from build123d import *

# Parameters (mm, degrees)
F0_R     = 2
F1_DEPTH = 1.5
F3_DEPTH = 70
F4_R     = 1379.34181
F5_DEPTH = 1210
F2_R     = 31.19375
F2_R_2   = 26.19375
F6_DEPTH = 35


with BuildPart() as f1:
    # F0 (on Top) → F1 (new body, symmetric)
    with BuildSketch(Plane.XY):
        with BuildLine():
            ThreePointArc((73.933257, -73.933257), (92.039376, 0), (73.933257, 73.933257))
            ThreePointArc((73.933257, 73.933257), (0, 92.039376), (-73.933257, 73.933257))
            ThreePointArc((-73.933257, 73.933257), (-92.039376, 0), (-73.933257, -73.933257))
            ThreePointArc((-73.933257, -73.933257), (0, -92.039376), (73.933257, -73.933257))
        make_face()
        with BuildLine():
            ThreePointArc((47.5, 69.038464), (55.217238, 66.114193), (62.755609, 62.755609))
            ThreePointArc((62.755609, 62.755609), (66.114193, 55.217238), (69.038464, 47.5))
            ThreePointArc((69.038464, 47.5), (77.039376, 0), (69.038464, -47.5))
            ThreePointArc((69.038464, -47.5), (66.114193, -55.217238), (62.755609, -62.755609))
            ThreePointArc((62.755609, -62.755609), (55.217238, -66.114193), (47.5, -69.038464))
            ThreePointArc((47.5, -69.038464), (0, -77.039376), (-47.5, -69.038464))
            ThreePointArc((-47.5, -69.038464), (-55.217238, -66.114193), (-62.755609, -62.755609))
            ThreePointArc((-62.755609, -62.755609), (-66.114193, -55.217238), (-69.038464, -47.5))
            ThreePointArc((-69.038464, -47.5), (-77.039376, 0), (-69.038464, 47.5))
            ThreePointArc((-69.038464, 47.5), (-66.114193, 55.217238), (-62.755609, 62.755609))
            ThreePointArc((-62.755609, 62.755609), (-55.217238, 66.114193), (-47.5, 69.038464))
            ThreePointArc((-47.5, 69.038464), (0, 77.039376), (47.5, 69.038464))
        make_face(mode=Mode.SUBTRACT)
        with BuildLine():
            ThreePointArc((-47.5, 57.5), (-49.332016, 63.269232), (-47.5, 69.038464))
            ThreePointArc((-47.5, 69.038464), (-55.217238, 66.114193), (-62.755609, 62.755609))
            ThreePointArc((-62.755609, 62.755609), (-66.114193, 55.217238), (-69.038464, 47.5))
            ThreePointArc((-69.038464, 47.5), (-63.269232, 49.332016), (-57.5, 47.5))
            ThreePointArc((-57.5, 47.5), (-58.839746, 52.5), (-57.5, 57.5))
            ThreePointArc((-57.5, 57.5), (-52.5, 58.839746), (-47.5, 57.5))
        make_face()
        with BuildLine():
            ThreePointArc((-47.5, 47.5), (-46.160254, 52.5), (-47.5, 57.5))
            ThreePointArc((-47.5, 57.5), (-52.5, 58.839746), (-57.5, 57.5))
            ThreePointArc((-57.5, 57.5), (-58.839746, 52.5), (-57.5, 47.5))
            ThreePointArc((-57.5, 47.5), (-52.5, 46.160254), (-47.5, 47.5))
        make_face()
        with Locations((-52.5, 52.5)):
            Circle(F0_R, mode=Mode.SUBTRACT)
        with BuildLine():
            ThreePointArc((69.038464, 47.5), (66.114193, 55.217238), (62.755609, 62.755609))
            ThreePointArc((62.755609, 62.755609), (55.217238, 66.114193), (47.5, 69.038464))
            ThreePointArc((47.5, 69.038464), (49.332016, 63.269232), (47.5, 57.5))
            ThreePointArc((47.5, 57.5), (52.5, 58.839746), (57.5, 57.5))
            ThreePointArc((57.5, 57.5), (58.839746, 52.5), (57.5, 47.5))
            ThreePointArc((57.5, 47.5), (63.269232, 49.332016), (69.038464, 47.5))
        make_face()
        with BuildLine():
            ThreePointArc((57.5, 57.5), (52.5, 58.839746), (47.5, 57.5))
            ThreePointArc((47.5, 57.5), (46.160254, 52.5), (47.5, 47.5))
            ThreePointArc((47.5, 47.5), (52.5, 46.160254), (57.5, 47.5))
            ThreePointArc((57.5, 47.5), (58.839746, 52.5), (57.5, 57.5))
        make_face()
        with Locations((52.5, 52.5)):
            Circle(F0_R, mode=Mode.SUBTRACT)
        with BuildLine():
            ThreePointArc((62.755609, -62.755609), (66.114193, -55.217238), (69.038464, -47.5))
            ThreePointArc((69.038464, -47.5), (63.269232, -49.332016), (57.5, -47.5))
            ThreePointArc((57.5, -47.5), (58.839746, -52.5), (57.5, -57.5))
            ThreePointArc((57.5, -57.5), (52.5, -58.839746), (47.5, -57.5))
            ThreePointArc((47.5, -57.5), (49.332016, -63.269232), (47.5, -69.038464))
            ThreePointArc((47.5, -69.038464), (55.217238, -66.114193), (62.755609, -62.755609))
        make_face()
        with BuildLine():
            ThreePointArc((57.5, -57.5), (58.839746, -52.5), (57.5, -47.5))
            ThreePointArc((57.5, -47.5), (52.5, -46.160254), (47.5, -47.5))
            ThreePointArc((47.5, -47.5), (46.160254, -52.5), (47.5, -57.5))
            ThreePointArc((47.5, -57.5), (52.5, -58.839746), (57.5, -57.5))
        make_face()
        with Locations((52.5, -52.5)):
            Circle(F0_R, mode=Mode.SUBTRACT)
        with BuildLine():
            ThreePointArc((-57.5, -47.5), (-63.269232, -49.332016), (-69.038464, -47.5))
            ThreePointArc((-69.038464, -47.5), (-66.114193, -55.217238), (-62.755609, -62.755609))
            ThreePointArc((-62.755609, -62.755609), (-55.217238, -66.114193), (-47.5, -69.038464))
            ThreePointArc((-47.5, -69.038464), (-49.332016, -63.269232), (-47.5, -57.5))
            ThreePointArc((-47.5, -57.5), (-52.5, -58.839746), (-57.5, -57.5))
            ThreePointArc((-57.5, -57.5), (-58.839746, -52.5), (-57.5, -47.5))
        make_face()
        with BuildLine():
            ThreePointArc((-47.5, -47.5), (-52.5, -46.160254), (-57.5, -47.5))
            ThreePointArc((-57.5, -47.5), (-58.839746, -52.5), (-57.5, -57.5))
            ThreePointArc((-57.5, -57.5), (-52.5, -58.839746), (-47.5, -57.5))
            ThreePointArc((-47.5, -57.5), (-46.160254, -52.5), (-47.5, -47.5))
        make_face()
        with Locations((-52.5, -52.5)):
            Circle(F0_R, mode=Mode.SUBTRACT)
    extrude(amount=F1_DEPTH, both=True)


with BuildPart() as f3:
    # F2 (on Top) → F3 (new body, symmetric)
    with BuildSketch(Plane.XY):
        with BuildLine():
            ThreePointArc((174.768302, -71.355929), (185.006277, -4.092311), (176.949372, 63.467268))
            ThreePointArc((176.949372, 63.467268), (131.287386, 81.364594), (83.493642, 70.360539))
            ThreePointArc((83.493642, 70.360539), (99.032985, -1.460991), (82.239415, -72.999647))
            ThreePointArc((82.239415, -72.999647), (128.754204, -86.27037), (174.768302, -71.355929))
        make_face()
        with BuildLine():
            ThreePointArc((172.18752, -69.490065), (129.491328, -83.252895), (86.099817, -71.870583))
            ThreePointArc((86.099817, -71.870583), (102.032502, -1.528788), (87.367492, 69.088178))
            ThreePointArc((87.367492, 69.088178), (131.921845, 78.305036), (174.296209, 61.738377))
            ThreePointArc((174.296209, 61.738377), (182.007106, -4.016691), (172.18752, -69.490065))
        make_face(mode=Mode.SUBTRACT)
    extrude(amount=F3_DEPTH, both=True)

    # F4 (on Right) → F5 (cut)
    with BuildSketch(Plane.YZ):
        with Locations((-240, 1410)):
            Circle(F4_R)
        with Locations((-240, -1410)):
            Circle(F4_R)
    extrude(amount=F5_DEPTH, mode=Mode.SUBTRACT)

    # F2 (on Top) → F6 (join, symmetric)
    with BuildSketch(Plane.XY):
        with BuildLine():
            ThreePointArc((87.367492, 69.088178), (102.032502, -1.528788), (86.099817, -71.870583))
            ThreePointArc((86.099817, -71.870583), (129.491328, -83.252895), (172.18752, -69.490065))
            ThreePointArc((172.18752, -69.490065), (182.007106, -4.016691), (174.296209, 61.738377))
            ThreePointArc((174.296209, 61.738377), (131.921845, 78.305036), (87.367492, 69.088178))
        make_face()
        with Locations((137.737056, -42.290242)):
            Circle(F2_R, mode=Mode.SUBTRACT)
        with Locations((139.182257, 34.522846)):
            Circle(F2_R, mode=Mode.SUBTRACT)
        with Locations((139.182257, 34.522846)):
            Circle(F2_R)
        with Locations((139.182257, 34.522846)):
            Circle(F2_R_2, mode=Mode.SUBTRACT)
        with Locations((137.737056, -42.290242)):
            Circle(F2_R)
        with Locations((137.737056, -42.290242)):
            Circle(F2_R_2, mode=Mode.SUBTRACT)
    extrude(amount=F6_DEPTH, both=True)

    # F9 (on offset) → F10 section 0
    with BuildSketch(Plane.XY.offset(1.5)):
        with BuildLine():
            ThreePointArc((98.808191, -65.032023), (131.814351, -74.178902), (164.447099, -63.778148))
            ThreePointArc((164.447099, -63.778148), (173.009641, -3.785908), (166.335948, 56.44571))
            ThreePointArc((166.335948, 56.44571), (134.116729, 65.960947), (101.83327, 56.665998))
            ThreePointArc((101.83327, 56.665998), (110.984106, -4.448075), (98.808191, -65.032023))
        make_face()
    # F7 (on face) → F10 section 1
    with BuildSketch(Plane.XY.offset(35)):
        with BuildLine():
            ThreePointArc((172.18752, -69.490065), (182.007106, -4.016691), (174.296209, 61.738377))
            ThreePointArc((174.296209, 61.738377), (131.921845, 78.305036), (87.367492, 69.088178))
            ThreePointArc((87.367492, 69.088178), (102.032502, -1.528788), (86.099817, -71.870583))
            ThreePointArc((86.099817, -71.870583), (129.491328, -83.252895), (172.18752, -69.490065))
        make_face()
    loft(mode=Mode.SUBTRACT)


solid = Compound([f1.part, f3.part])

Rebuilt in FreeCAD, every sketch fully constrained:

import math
import FreeCAD as App
import Part
import Sketcher
from FreeCAD import Vector
Q = App.Units.Quantity

doc = App.newDocument("Part")
body = doc.addObject("PartDesign::Body", "Body")

sketch1 = body.newObject("Sketcher::SketchObject", "Sketch")
sketch1.AttachmentSupport = (doc.getObject("XY_Plane"), [""])
sketch1.MapMode = "FlatFace"
sketch1.addGeometry([
    Part.ArcOfCircle(Part.Circle(Vector(-68, 0, 0), Vector(0, 0, 1), 160), math.radians(-28), math.radians(28)),
    Part.ArcOfCircle(Part.Circle(Vector(0, -68, 0), Vector(0, 0, 1), 160), math.radians(62), math.radians(118)),
    Part.ArcOfCircle(Part.Circle(Vector(68, 0, 0), Vector(0, 0, 1), 160), math.radians(152), math.radians(208)),
    Part.ArcOfCircle(Part.Circle(Vector(0, 68, 0), Vector(0, 0, 1), 160), math.radians(-118), math.radians(-62)),
    Part.Circle(Vector(-52.5, -52.5, 0), Vector(0, 0, 1), 2),
    Part.Circle(Vector(52.5, -52.5, 0), Vector(0, 0, 1), 2),
    Part.Circle(Vector(-52.5, 52.5, 0), Vector(0, 0, 1), 2),
    Part.ArcOfCircle(Part.Circle(Vector(0, -68, 0), Vector(0, 0, 1), 145), math.radians(71), math.radians(109)),
    Part.ArcOfCircle(Part.Circle(Vector(39.3, 63.3, 0), Vector(0, 0, 1), 10), math.radians(-35), math.radians(35)),
    Part.ArcOfCircle(Part.Circle(Vector(56.2, 52.5, 0), Vector(0, 0, 1), 10), math.radians(150), math.radians(210)),
    Part.ArcOfCircle(Part.Circle(Vector(52.5, 56.2, 0), Vector(0, 0, 1), 10), math.radians(-120), math.radians(-60)),
    Part.ArcOfCircle(Part.Circle(Vector(63.3, 39.3, 0), Vector(0, 0, 1), 10), math.radians(55), math.radians(125)),
    Part.ArcOfCircle(Part.Circle(Vector(-68, 0, 0), Vector(0, 0, 1), 145), math.radians(-19), math.radians(19)),
    Part.ArcOfCircle(Part.Circle(Vector(63.3, -39.3, 0), Vector(0, 0, 1), 10), math.radians(-125), math.radians(-55)),
    Part.ArcOfCircle(Part.Circle(Vector(52.5, -56.2, 0), Vector(0, 0, 1), 10), math.radians(60), math.radians(120)),
    Part.ArcOfCircle(Part.Circle(Vector(56.2, -52.5, 0), Vector(0, 0, 1), 10), math.radians(150), math.radians(210)),
    Part.ArcOfCircle(Part.Circle(Vector(39.3, -63.3, 0), Vector(0, 0, 1), 10), math.radians(-35), math.radians(35)),
    Part.ArcOfCircle(Part.Circle(Vector(0, 68, 0), Vector(0, 0, 1), 145), math.radians(-109), math.radians(-71)),
    Part.ArcOfCircle(Part.Circle(Vector(-39.3, -63.3, 0), Vector(0, 0, 1), 10), math.radians(145), math.radians(215)),
    Part.ArcOfCircle(Part.Circle(Vector(-56.2, -52.5, 0), Vector(0, 0, 1), 10), math.radians(-30), math.radians(30)),
    Part.ArcOfCircle(Part.Circle(Vector(-52.5, -56.2, 0), Vector(0, 0, 1), 10), math.radians(60), math.radians(120)),
    Part.ArcOfCircle(Part.Circle(Vector(-63.3, -39.3, 0), Vector(0, 0, 1), 10), math.radians(-125), math.radians(-55)),
    Part.ArcOfCircle(Part.Circle(Vector(68, 0, 0), Vector(0, 0, 1), 145), math.radians(161), math.radians(199)),
    Part.ArcOfCircle(Part.Circle(Vector(-63.3, 39.3, 0), Vector(0, 0, 1), 10), math.radians(55), math.radians(125)),
    Part.ArcOfCircle(Part.Circle(Vector(-52.5, 56.2, 0), Vector(0, 0, 1), 10), math.radians(-120), math.radians(-60)),
    Part.ArcOfCircle(Part.Circle(Vector(-56.2, 52.5, 0), Vector(0, 0, 1), 10), math.radians(-30), math.radians(30)),
    Part.ArcOfCircle(Part.Circle(Vector(-39.3, 63.3, 0), Vector(0, 0, 1), 10), math.radians(145), math.radians(215)),
    Part.Circle(Vector(52.5, 52.5, 0), Vector(0, 0, 1), 2),
], False)
sketch1.addConstraint([
    Sketcher.Constraint("Coincident", 0, 2, 1, 1),
    Sketcher.Constraint("Coincident", 1, 2, 2, 1),
    Sketcher.Constraint("Coincident", 2, 2, 3, 1),
    Sketcher.Constraint("Coincident", 3, 2, 0, 1),
    Sketcher.Constraint("Coincident", 7, 1, 8, 2),
    Sketcher.Constraint("Coincident", 8, 1, 9, 1),
    Sketcher.Constraint("Coincident", 9, 2, 10, 1),
    Sketcher.Constraint("Coincident", 10, 2, 11, 2),
    Sketcher.Constraint("Coincident", 11, 1, 12, 2),
    Sketcher.Constraint("Coincident", 12, 1, 13, 2),
    Sketcher.Constraint("Coincident", 13, 1, 14, 1),
    Sketcher.Constraint("Coincident", 14, 2, 15, 1),
    Sketcher.Constraint("Coincident", 15, 2, 16, 2),
    Sketcher.Constraint("Coincident", 16, 1, 17, 2),
    Sketcher.Constraint("Coincident", 17, 1, 18, 2),
    Sketcher.Constraint("Coincident", 18, 1, 19, 1),
    Sketcher.Constraint("Coincident", 19, 2, 20, 1),
    Sketcher.Constraint("Coincident", 20, 2, 21, 2),
    Sketcher.Constraint("Coincident", 21, 1, 22, 2),
    Sketcher.Constraint("Coincident", 22, 1, 23, 2),
    Sketcher.Constraint("Coincident", 23, 1, 24, 1),
    Sketcher.Constraint("Coincident", 24, 2, 25, 1),
    Sketcher.Constraint("Coincident", 25, 2, 26, 2),
    Sketcher.Constraint("Coincident", 26, 1, 7, 2),
    Sketcher.Constraint("Coincident", 7, 3, 1, 3),
    Sketcher.Constraint("Coincident", 12, 3, 0, 3),
    Sketcher.Constraint("Coincident", 17, 3, 3, 3),
    Sketcher.Constraint("Coincident", 22, 3, 2, 3),
    Sketcher.Constraint("Equal", 0, 1),
    Sketcher.Constraint("Equal", 1, 2),
    Sketcher.Constraint("Equal", 2, 3),
    Sketcher.Constraint("Equal", 4, 5),
    Sketcher.Constraint("Equal", 5, 6),
    Sketcher.Constraint("Equal", 8, 9),
    Sketcher.Constraint("Equal", 9, 10),
    Sketcher.Constraint("Equal", 10, 11),
    Sketcher.Constraint("Equal", 7, 12),
    Sketcher.Constraint("Equal", 11, 13),
    Sketcher.Constraint("Equal", 13, 14),
    Sketcher.Constraint("Equal", 14, 15),
    Sketcher.Constraint("Equal", 15, 16),
    Sketcher.Constraint("Equal", 12, 17),
    Sketcher.Constraint("Equal", 16, 18),
    Sketcher.Constraint("Equal", 18, 19),
    Sketcher.Constraint("Equal", 19, 20),
    Sketcher.Constraint("Equal", 20, 21),
    Sketcher.Constraint("Equal", 17, 22),
    Sketcher.Constraint("Equal", 21, 23),
    Sketcher.Constraint("Equal", 23, 24),
    Sketcher.Constraint("Equal", 24, 25),
    Sketcher.Constraint("Equal", 25, 26),
    Sketcher.Constraint("Equal", 6, 27),
    Sketcher.Constraint("Symmetric", 0, 3, 2, 3, -1, 1),
    Sketcher.Constraint("Symmetric", 1, 3, 3, 3, -1, 1),
    Sketcher.Constraint("Symmetric", 5, 3, 6, 3, -1, 1),
    Sketcher.Constraint("Symmetric", 8, 3, 18, 3, -1, 1),
    Sketcher.Constraint("Symmetric", 9, 3, 19, 3, -1, 1),
    Sketcher.Constraint("Symmetric", 10, 3, 20, 3, -1, 1),
    Sketcher.Constraint("Symmetric", 11, 3, 21, 3, -1, 1),
    Sketcher.Constraint("Symmetric", 13, 3, 23, 3, -1, 1),
    Sketcher.Constraint("Symmetric", 14, 3, 24, 3, -1, 1),
    Sketcher.Constraint("Symmetric", 15, 3, 25, 3, -1, 1),
    Sketcher.Constraint("Symmetric", 16, 3, 26, 3, -1, 1),
    Sketcher.Constraint("Symmetric", 4, 3, 27, 3, -1, 1),
    Sketcher.Constraint("Symmetric", 4, 3, 5, 3, -2),
    Sketcher.Constraint("Symmetric", 16, 3, 18, 3, -2),
    Sketcher.Constraint("Symmetric", 15, 3, 19, 3, -2),
    Sketcher.Constraint("Symmetric", 14, 3, 20, 3, -2),
    Sketcher.Constraint("Symmetric", 13, 3, 21, 3, -2),
    Sketcher.Constraint("Symmetric", 0, 2, 1, 2, -2),
    Sketcher.Constraint("Horizontal", 6, 3, 9, 3),
    Sketcher.Constraint("Horizontal", 9, 2, 10, 2),
    Sketcher.Constraint("Horizontal", 10, 2, 11, 1),
    Sketcher.Constraint("Vertical", 5, 3, 10, 3),
    Sketcher.Constraint("Vertical", 7, 1, 8, 1),
    Sketcher.Constraint("Vertical", 8, 1, 9, 2),
    Sketcher.Constraint("Diameter", 4, Q("4 mm")),
    Sketcher.Constraint("Radius", 0, Q("159.999999 mm")),
    Sketcher.Constraint("Radius", 8, Q("10 mm")),
    Sketcher.Constraint("DistanceX", 4, 3, 5, 3, Q("105 mm")),
    Sketcher.Constraint("DistanceY", 4, 3, 6, 3, Q("105 mm")),
    Sketcher.Constraint("DistanceX", 7, 1, 10, 3, Q("5 mm")),
    Sketcher.Constraint("DistanceY", 27, 3, 8, 1, Q("5 mm")),
    Sketcher.Constraint("Radius", 7, Q("145.000007 mm")),
    Sketcher.Constraint("DistanceY", 8, 3, 17, 3, Q("4.691399 mm")),
    Sketcher.Constraint("DistanceX", 11, 3, 22, 3, Q("4.691399 mm")),
])
pad1 = body.newObject("PartDesign::Pad", "Pad")
pad1.Profile = sketch1
pad1.Length = 3
pad1.Midplane = True
body2 = doc.addObject("PartDesign::Body", "Body001")

sketch2 = body2.newObject("Sketcher::SketchObject", "Sketch001")
sketch2.AttachmentSupport = (doc.getObject("XY_Plane001"), [""])
sketch2.MapMode = "FlatFace"
sketch2.addGeometry([
    Part.ArcOfCircle(Part.Circle(Vector(-68, 0, 0), Vector(0, 0, 1), 253), math.radians(-16), math.radians(15)),
    Part.ArcOfCircle(Part.Circle(Vector(125, -1, 0), Vector(0, 0, 1), 83), math.radians(51), math.radians(120)),
    Part.ArcOfCircle(Part.Circle(Vector(-68, 0, 0), Vector(0, 0, 1), 167), math.radians(-26), math.radians(25)),
    Part.ArcOfCircle(Part.Circle(Vector(127, -3, 0), Vector(0, 0, 1), 83), math.radians(-123), math.radians(-55)),
    Part.ArcOfCircle(Part.Circle(Vector(-68, 0, 0), Vector(0, 0, 1), 250), math.radians(-16), math.radians(14)),
    Part.ArcOfCircle(Part.Circle(Vector(127, -3, 0), Vector(0, 0, 1), 80), math.radians(-121), math.radians(-56)),
    Part.ArcOfCircle(Part.Circle(Vector(-68, 0, 0), Vector(0, 0, 1), 170), math.radians(-25), math.radians(24)),
    Part.ArcOfCircle(Part.Circle(Vector(125, -1, 0), Vector(0, 0, 1), 80), math.radians(52), math.radians(118)),
], False)
sketch2.addConstraint([
    Sketcher.Constraint("Coincident", 0, 2, 1, 1),
    Sketcher.Constraint("Coincident", 1, 2, 2, 2),
    Sketcher.Constraint("Coincident", 2, 1, 3, 1),
    Sketcher.Constraint("Coincident", 3, 2, 0, 1),
    Sketcher.Constraint("Coincident", 4, 1, 5, 2),
    Sketcher.Constraint("Coincident", 5, 1, 6, 1),
    Sketcher.Constraint("Coincident", 6, 2, 7, 2),
    Sketcher.Constraint("Coincident", 7, 1, 4, 2),
    Sketcher.Constraint("Coincident", 2, 3, 0, 3),
    Sketcher.Constraint("Coincident", 5, 3, 3, 3),
    Sketcher.Constraint("Coincident", 6, 3, 0, 3),
    Sketcher.Constraint("Coincident", 7, 3, 1, 3),
    Sketcher.Constraint("Equal", 1, 3),
    Sketcher.Constraint("Equal", 5, 7),
    Sketcher.Constraint("PointOnObject", 0, 3, -1),
    Sketcher.Constraint("PointOnObject", 4, 3, -1),
    Sketcher.Constraint("Radius", 3, Q("83.000001 mm")),
    Sketcher.Constraint("Radius", 5, Q("79.999999 mm")),
    Sketcher.Constraint("Radius", 6, Q("170 mm")),
    Sketcher.Constraint("Radius", 0, Q("253.00001 mm")),
    Sketcher.Constraint("Radius", 2, Q("167.000007 mm")),
    Sketcher.Constraint("Radius", 4, Q("250.000023 mm")),
    Sketcher.Constraint("DistanceY", 3, 3, 1, 2, Q("73.644001 mm")),
    Sketcher.Constraint("DistanceX", 2, 1, 7, 3, Q("42.942499 mm")),
    Sketcher.Constraint("DistanceY", 4, 1, 5, 3, Q("66.206601 mm")),
    Sketcher.Constraint("DistanceX", 6, 2, 3, 3, Q("39.912502 mm")),
    Sketcher.Constraint("DistanceX", 2, 3, -1, 1, Q("67.960631 mm")),
    Sketcher.Constraint("DistanceY", 7, 3, -1, 1, Q("1.41054 mm")),
])
pad2 = body2.newObject("PartDesign::Pad", "Pad001")
pad2.Profile = sketch2
pad2.Length = 140
pad2.Midplane = True

sketch3 = body2.newObject("Sketcher::SketchObject", "Sketch002")
sketch3.AttachmentSupport = (doc.getObject("YZ_Plane001"), [""])
sketch3.MapMode = "FlatFace"
sketch3.addGeometry([
    Part.Circle(Vector(-240, 1410, 0), Vector(0, 0, 1), 1379),
    Part.Circle(Vector(-240, -1410, 0), Vector(0, 0, 1), 1379),
], False)
sketch3.addConstraint([
    Sketcher.Constraint("Equal", 0, 1),
    Sketcher.Constraint("Symmetric", 0, 3, 1, 3, -1),
    Sketcher.Constraint("DistanceX", 0, 3, -1, 1, Q("240 mm")),
    Sketcher.Constraint("DistanceY", -1, 1, 0, 3, Q("1410 mm")),
    Sketcher.Constraint("Diameter", 0, Q("2758.68362 mm")),
])
pocket1 = body2.newObject("PartDesign::Pocket", "Pocket")
pocket1.Profile = sketch3
pocket1.Length = 1210
pocket1.Reversed = True

sketch4 = body2.newObject("Sketcher::SketchObject", "Sketch003")
sketch4.AttachmentSupport = (doc.getObject("XY_Plane001"), [""])
sketch4.MapMode = "FlatFace"
sketch4.addGeometry([
    Part.ArcOfCircle(Part.Circle(Vector(-68, 0, 0), Vector(0, 0, 1), 170), math.radians(-25), math.radians(24)),
    Part.ArcOfCircle(Part.Circle(Vector(127, -3, 0), Vector(0, 0, 1), 80), math.radians(-121), math.radians(-56)),
    Part.ArcOfCircle(Part.Circle(Vector(-68, 0, 0), Vector(0, 0, 1), 250), math.radians(-16), math.radians(14)),
    Part.ArcOfCircle(Part.Circle(Vector(125, -1, 0), Vector(0, 0, 1), 80), math.radians(52), math.radians(118)),
    Part.Circle(Vector(138, -42, 0), Vector(0, 0, 1), 26),
    Part.Circle(Vector(139, 35, 0), Vector(0, 0, 1), 26),
], False)
sketch4.addConstraint([
    Sketcher.Constraint("Coincident", 0, 1, 1, 1),
    Sketcher.Constraint("Coincident", 1, 2, 2, 1),
    Sketcher.Constraint("Coincident", 2, 2, 3, 1),
    Sketcher.Constraint("Coincident", 3, 2, 0, 2),
    Sketcher.Constraint("Equal", 1, 3),
    Sketcher.Constraint("Equal", 4, 5),
    Sketcher.Constraint("PointOnObject", 0, 3, -1),
    Sketcher.Constraint("PointOnObject", 2, 3, -1),
    Sketcher.Constraint("Radius", 0, Q("170 mm")),
    Sketcher.Constraint("Radius", 1, Q("79.999999 mm")),
    Sketcher.Constraint("Diameter", 4, Q("52.3875 mm")),
    Sketcher.Constraint("Radius", 2, Q("250.000023 mm")),
    Sketcher.Constraint("DistanceX", 4, 3, 5, 3, Q("1.445201 mm")),
    Sketcher.Constraint("DistanceY", 1, 2, 1, 3, Q("66.206601 mm")),
    Sketcher.Constraint("DistanceY", 2, 2, 3, 2, Q("7.349801 mm")),
    Sketcher.Constraint("DistanceY", 3, 3, -1, 1, Q("1.41054 mm")),
    Sketcher.Constraint("DistanceX", -1, 1, 1, 2, Q("172.18752 mm")),
    Sketcher.Constraint("DistanceX", -1, 1, 2, 2, Q("174.296209 mm")),
    Sketcher.Constraint("DistanceX", -1, 1, 3, 2, Q("87.367492 mm")),
    Sketcher.Constraint("DistanceX", 1, 3, 4, 3, Q("10.457062 mm")),
    Sketcher.Constraint("DistanceY", 4, 3, 0, 3, Q("42.290241 mm")),
    Sketcher.Constraint("DistanceY", 1, 3, 5, 3, Q("37.80631 mm")),
])
pad3 = body2.newObject("PartDesign::Pad", "Pad002")
pad3.Profile = sketch4
pad3.Length = 70
pad3.Midplane = True

sketch5 = body2.newObject("Sketcher::SketchObject", "Sketch004")
sketch5.AttachmentSupport = (doc.getObject("XY_Plane001"), [""])
sketch5.MapMode = "FlatFace"
sketch5.AttachmentOffset = App.Placement(Vector(0, 0, 1.5), App.Rotation())
sketch5.addGeometry([
    Part.ArcOfCircle(Part.Circle(Vector(131, -14, 0), Vector(0, 0, 1), 60), math.radians(-122), math.radians(-56)),
    Part.ArcOfCircle(Part.Circle(Vector(-68, 0, 0), Vector(0, 0, 1), 241), math.radians(-15), math.radians(14)),
    Part.ArcOfCircle(Part.Circle(Vector(134, 6, 0), Vector(0, 0, 1), 60), math.radians(57), math.radians(122)),
    Part.ArcOfCircle(Part.Circle(Vector(-68, 0, 0), Vector(0, 0, 1), 179), math.radians(-21), math.radians(18)),
], False)
sketch5.addConstraint([
    Sketcher.Constraint("Coincident", 0, 2, 1, 1),
    Sketcher.Constraint("Coincident", 1, 2, 2, 1),
    Sketcher.Constraint("Coincident", 2, 2, 3, 2),
    Sketcher.Constraint("Coincident", 3, 1, 0, 1),
    Sketcher.Constraint("PointOnObject", 1, 3, -1),
    Sketcher.Constraint("PointOnObject", 3, 3, -1),
    Sketcher.Constraint("Radius", 0, Q("60 mm")),
    Sketcher.Constraint("DistanceY", -1, 1, 2, 2, Q("56.665998 mm")),
    Sketcher.Constraint("Radius", 1, Q("241.000013 mm")),
    Sketcher.Constraint("Radius", 2, Q("60.000003 mm")),
    Sketcher.Constraint("Radius", 3, Q("179.000003 mm")),
    Sketcher.Constraint("DistanceX", -1, 1, 0, 2, Q("164.447099 mm")),
    Sketcher.Constraint("DistanceY", 0, 2, 0, 3, Q("49.588302 mm")),
    Sketcher.Constraint("DistanceX", -1, 1, 2, 3, Q("133.91182 mm")),
    Sketcher.Constraint("DistanceX", 3, 3, -1, 1, Q("67.960622 mm")),
    Sketcher.Constraint("DistanceY", 0, 2, -1, 1, Q("63.778148 mm")),
])

sketch6 = body2.newObject("Sketcher::SketchObject", "Sketch005")
sketch6.AttachmentSupport = (doc.getObject("XY_Plane001"), [""])
sketch6.MapMode = "FlatFace"
sketch6.AttachmentOffset = App.Placement(Vector(0, 0, 35), App.Rotation())
sketch6.addGeometry([
    Part.ArcOfCircle(Part.Circle(Vector(-68, 0, 0), Vector(0, 0, 1), 250), math.radians(-16), math.radians(14)),
    Part.ArcOfCircle(Part.Circle(Vector(125, -1, 0), Vector(0, 0, 1), 80), math.radians(52), math.radians(118)),
    Part.ArcOfCircle(Part.Circle(Vector(-68, 0, 0), Vector(0, 0, 1), 170), math.radians(-25), math.radians(24)),
    Part.ArcOfCircle(Part.Circle(Vector(127, -3, 0), Vector(0, 0, 1), 80), math.radians(-121), math.radians(-56)),
], False)
sketch6.addConstraint([
    Sketcher.Constraint("Coincident", 0, 2, 1, 1),
    Sketcher.Constraint("Coincident", 1, 2, 2, 2),
    Sketcher.Constraint("Coincident", 2, 1, 3, 1),
    Sketcher.Constraint("Coincident", 3, 2, 0, 1),
    Sketcher.Constraint("Equal", 1, 3),
    Sketcher.Constraint("PointOnObject", 0, 3, -1),
    Sketcher.Constraint("PointOnObject", 2, 3, -1),
    Sketcher.Constraint("Radius", 1, Q("79.999998 mm")),
    Sketcher.Constraint("Radius", 2, Q("170 mm")),
    Sketcher.Constraint("Radius", 0, Q("250.000023 mm")),
    Sketcher.Constraint("DistanceY", 0, 2, 1, 2, Q("7.349801 mm")),
    Sketcher.Constraint("DistanceY", 3, 2, 3, 3, Q("66.206601 mm")),
    Sketcher.Constraint("DistanceY", 1, 3, -1, 1, Q("1.41054 mm")),
    Sketcher.Constraint("DistanceX", -1, 1, 0, 2, Q("174.296209 mm")),
    Sketcher.Constraint("DistanceX", -1, 1, 1, 2, Q("87.367492 mm")),
    Sketcher.Constraint("DistanceX", -1, 1, 3, 2, Q("172.18752 mm")),
])

subtractiveloft = body2.newObject("PartDesign::SubtractiveLoft", "SubtractiveLoft")
subtractiveloft.Profile = sketch5
subtractiveloft.Sections = [sketch6]

doc.recompute()
